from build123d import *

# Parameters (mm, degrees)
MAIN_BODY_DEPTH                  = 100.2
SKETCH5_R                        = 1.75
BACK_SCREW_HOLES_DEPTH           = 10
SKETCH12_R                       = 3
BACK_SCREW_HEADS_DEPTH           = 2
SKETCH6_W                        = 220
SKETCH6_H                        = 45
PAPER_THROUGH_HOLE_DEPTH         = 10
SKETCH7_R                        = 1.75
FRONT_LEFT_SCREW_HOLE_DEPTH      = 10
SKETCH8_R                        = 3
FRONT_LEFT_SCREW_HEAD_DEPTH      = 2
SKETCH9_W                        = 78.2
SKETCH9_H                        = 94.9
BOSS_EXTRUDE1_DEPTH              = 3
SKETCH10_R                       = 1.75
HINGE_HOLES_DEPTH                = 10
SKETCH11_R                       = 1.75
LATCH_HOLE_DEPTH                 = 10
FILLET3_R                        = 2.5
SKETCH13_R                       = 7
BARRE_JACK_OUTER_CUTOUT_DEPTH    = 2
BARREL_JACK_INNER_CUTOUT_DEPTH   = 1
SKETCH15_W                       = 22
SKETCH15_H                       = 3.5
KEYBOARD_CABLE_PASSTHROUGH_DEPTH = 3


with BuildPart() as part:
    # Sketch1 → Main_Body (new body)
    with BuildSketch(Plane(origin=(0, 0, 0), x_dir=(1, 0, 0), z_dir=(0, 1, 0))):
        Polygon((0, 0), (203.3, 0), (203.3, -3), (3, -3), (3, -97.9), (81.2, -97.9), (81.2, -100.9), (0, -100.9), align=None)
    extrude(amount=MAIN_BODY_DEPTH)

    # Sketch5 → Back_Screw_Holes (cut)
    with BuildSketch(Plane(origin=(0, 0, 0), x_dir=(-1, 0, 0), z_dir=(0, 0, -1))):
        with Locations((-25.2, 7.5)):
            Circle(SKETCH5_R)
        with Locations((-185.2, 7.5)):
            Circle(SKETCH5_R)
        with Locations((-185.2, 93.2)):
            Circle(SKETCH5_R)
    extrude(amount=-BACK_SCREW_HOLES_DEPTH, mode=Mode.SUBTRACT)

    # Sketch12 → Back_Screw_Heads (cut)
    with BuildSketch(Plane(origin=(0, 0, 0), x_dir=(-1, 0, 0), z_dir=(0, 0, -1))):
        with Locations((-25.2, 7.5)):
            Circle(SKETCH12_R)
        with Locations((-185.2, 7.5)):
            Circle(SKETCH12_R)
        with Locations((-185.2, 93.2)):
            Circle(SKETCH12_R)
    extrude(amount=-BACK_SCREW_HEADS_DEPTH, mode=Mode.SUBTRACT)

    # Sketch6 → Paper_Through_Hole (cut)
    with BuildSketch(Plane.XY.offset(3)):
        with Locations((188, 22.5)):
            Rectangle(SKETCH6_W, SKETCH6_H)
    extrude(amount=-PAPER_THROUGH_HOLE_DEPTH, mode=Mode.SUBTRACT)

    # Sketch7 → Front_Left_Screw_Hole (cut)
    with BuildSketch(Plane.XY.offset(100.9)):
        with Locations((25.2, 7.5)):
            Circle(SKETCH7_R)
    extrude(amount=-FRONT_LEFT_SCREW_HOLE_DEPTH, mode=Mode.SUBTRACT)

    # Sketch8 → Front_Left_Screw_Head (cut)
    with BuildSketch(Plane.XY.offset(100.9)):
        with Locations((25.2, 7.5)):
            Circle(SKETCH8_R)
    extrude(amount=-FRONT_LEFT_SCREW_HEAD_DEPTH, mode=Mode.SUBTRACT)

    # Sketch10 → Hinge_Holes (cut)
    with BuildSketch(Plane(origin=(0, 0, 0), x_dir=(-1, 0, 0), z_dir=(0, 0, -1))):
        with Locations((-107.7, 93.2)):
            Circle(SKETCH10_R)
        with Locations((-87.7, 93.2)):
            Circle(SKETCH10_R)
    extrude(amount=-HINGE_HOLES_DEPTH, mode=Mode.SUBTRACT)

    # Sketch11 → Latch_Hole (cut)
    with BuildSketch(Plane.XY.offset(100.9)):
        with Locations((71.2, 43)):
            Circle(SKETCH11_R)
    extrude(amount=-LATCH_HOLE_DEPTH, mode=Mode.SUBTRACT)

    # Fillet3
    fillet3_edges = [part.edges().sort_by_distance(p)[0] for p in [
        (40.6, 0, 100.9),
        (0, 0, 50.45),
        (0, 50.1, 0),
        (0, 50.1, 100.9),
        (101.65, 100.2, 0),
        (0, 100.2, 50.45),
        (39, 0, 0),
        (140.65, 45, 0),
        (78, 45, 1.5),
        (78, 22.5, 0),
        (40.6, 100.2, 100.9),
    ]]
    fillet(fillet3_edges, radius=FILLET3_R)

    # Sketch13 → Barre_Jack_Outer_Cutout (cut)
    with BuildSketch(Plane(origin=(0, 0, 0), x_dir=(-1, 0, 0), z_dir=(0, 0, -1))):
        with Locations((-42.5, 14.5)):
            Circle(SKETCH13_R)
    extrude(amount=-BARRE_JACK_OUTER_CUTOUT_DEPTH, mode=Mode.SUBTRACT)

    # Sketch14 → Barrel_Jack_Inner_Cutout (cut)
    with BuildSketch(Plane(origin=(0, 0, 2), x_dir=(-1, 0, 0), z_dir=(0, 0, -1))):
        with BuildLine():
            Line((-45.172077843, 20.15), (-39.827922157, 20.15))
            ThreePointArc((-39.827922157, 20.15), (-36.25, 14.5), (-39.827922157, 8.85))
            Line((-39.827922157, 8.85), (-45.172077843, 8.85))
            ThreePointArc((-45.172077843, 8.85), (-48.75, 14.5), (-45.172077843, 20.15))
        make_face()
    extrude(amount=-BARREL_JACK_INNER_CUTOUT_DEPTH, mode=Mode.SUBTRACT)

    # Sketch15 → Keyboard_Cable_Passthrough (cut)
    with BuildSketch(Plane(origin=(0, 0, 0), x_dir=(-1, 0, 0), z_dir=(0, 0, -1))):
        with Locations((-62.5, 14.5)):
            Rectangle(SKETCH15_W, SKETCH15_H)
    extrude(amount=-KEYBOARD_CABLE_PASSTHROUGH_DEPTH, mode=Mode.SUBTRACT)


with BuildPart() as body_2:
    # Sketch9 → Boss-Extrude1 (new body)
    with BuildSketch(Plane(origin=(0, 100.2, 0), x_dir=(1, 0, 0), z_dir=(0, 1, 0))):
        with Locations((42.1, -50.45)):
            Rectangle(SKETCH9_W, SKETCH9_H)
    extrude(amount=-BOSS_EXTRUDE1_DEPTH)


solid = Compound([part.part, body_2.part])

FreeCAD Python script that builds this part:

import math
import FreeCAD as App
import Part
import Sketcher
from FreeCAD import Vector


def edges_at(feature, points):
    """Names of the edges that pass closest to the given points."""
    edges = feature.Shape.Edges
    near = lambda p: min(range(len(edges)), key=lambda i: edges[i].distToShape(Part.Vertex(*p))[0])
    return sorted({f"Edge{near(p) + 1}" for p in points})


def add_polygon(sketch, points):
    """Adds a closed chain of lines whose ends are joined by coincident constraints."""
    first, n = sketch.GeometryCount, len(points)
    for a, b in zip(points, points[1:] + points[:1]):
        sketch.addGeometry(Part.LineSegment(App.Vector(*a, 0), App.Vector(*b, 0)), False)
    for i in range(n):
        sketch.addConstraint(Sketcher.Constraint("Coincident", first + i, 2, first + (i + 1) % n, 1))

doc = App.newDocument("Part")
body = doc.addObject("PartDesign::Body", "Body")

# Sketch on XZ plane
sketch1 = doc.addObject("Sketcher::SketchObject", "Sketch")
body.addObject(sketch1)
sketch1.AttachmentSupport = (doc.XZ_Plane, [""])
sketch1.MapMode = "FlatFace"
add_polygon(sketch1, [(203.3, 0), (0, 0), (0, 100.9), (81.2, 100.9), (81.2, 97.9), (3, 97.9), (3, 3), (203.3, 3)])  # lines 0-7
sketch1.addConstraint(Sketcher.Constraint("Horizontal", 0))
sketch1.addConstraint(Sketcher.Constraint("Vertical", 1))
sketch1.addConstraint(Sketcher.Constraint("Horizontal", 2))
sketch1.addConstraint(Sketcher.Constraint("Vertical", 3))
sketch1.addConstraint(Sketcher.Constraint("Horizontal", 4))
sketch1.addConstraint(Sketcher.Constraint("Vertical", 5))
sketch1.addConstraint(Sketcher.Constraint("Horizontal", 6))
sketch1.addConstraint(Sketcher.Constraint("Vertical", 7))
sketch1.addConstraint(Sketcher.Constraint("Coincident", 0, 2, -1, 1))
sketch1.addConstraint(Sketcher.Constraint("Equal", 3, 7))
sketch1.addConstraint(Sketcher.Constraint("DistanceY", 3, 2, 3, 1, 3.0))
sketch1.addConstraint(Sketcher.Constraint("DistanceX", 0, 2, 0, 1, 203.3))
sketch1.addConstraint(Sketcher.Constraint("DistanceX", 2, 1, 2, 2, 81.2))
sketch1.addConstraint(Sketcher.Constraint("DistanceX", 4, 2, 4, 1, 78.2))
sketch1.addConstraint(Sketcher.Constraint("DistanceY", 1, 1, 1, 2, 100.9))
pad1 = doc.addObject("PartDesign::Pad", "Pad")
body.addObject(pad1)
pad1.Profile = sketch1
pad1.Length = 100.2
pad1.Reversed = True

# Sketch on XY plane
sketch2 = doc.addObject("Sketcher::SketchObject", "Sketch001")
body.addObject(sketch2)
sketch2.AttachmentSupport = (doc.XY_Plane, [""])
sketch2.MapMode = "FlatFace"
sketch2.addGeometry(Part.Circle(Vector(25.2, 7.5, 0), Vector(0, 0, 1), 1.75), False)
sketch2.addGeometry(Part.Circle(Vector(185.2, 7.5, 0), Vector(0, 0, 1), 1.75), False)
sketch2.addGeometry(Part.Circle(Vector(185.2, 93.2, 0), Vector(0, 0, 1), 1.75), False)
sketch2.addConstraint(Sketcher.Constraint("Equal", 0, 1))
sketch2.addConstraint(Sketcher.Constraint("Equal", 1, 2))
sketch2.addConstraint(Sketcher.Constraint("Horizontal", 0, 3, 1, 3))
sketch2.addConstraint(Sketcher.Constraint("Vertical", 1, 3, 2, 3))
sketch2.addConstraint(Sketcher.Constraint("Diameter", 0, 3.5))
sketch2.addConstraint(Sketcher.Constraint("DistanceX", 0, 3, 1, 3, 160.0))
sketch2.addConstraint(Sketcher.Constraint("DistanceX", -1, 1, 0, 3, 25.2))
sketch2.addConstraint(Sketcher.Constraint("DistanceY", -1, 1, 0, 3, 7.5))
sketch2.addConstraint(Sketcher.Constraint("DistanceY", -1, 1, 2, 3, 93.2))
pocket1 = doc.addObject("PartDesign::Pocket", "Pocket")
body.addObject(pocket1)
pocket1.Profile = sketch2
pocket1.Length = 10
pocket1.Reversed = True

# Sketch on XY plane
sketch3 = doc.addObject("Sketcher::SketchObject", "Sketch002")
body.addObject(sketch3)
sketch3.AttachmentSupport = (doc.XY_Plane, [""])
sketch3.MapMode = "FlatFace"
sketch3.addGeometry(Part.Circle(Vector(25.2, 7.5, 0), Vector(0, 0, 1), 3), False)
sketch3.addGeometry(Part.Circle(Vector(185.2, 7.5, 0), Vector(0, 0, 1), 3), False)
sketch3.addGeometry(Part.Circle(Vector(185.2, 93.2, 0), Vector(0, 0, 1), 3), False)
sketch3.addConstraint(Sketcher.Constraint("Equal", 0, 1))
sketch3.addConstraint(Sketcher.Constraint("Equal", 1, 2))
sketch3.addConstraint(Sketcher.Constraint("Horizontal", 0, 3, 1, 3))
sketch3.addConstraint(Sketcher.Constraint("Vertical", 1, 3, 2, 3))
sketch3.addConstraint(Sketcher.Constraint("Diameter", 0, 6.0))
sketch3.addConstraint(Sketcher.Constraint("DistanceX", 0, 3, 1, 3, 160.0))
sketch3.addConstraint(Sketcher.Constraint("DistanceX", -1, 1, 0, 3, 25.2))
sketch3.addConstraint(Sketcher.Constraint("DistanceY", -1, 1, 0, 3, 7.5))
sketch3.addConstraint(Sketcher.Constraint("DistanceY", -1, 1, 2, 3, 93.2))
pocket2 = doc.addObject("PartDesign::Pocket", "Pocket001")
body.addObject(pocket2)
pocket2.Profile = sketch3
pocket2.Length = 2
pocket2.Reversed = True

# Sketch on XY plane
sketch4 = doc.addObject("Sketcher::SketchObject", "Sketch003")
body.addObject(sketch4)
sketch4.AttachmentSupport = (doc.XY_Plane, [""])
sketch4.MapMode = "FlatFace"
sketch4.AttachmentOffset = App.Placement(Vector(0, 0, 3), App.Rotation())
add_polygon(sketch4, [(78, 45), (78, 0), (298, 0), (298, 45)])  # lines 0-3
sketch4.addConstraint(Sketcher.Constraint("Vertical", 0))
sketch4.addConstraint(Sketcher.Constraint("Horizontal", 1))
sketch4.addConstraint(Sketcher.Constraint("Vertical", 2))
sketch4.addConstraint(Sketcher.Constraint("Horizontal", 3))
sketch4.addConstraint(Sketcher.Constraint("PointOnObject", 0, 2, -1))
sketch4.addConstraint(Sketcher.Constraint("DistanceX", 1, 1, 1, 2, 220.0))
sketch4.addConstraint(Sketcher.Constraint("DistanceY", 0, 2, 0, 1, 45.0))
sketch4.addConstraint(Sketcher.Constraint("DistanceX", -1, 1, 0, 2, 78.0))
pocket3 = doc.addObject("PartDesign::Pocket", "Pocket002")
body.addObject(pocket3)
pocket3.Profile = sketch4
pocket3.Length = 10

# Sketch on XY plane
sketch5 = doc.addObject("Sketcher::SketchObject", "Sketch004")
body.addObject(sketch5)
sketch5.AttachmentSupport = (doc.XY_Plane, [""])
sketch5.MapMode = "FlatFace"
sketch5.AttachmentOffset = App.Placement(Vector(0, 0, 100.9), App.Rotation())
sketch5.addGeometry(Part.Circle(Vector(25.2, 7.5, 0), Vector(0, 0, 1), 1.75), False)
sketch5.addConstraint(Sketcher.Constraint("Diameter", 0, 3.5))
sketch5.addConstraint(Sketcher.Constraint("DistanceX", -1, 1, 0, 3, 25.2))
sketch5.addConstraint(Sketcher.Constraint("DistanceY", -1, 1, 0, 3, 7.5))
pocket4 = doc.addObject("PartDesign::Pocket", "Pocket003")
body.addObject(pocket4)
pocket4.Profile = sketch5
pocket4.Length = 10

# Sketch on XY plane
sketch6 = doc.addObject("Sketcher::SketchObject", "Sketch005")
body.addObject(sketch6)
sketch6.AttachmentSupport = (doc.XY_Plane, [""])
sketch6.MapMode = "FlatFace"
sketch6.AttachmentOffset = App.Placement(Vector(0, 0, 100.9), App.Rotation())
sketch6.addGeometry(Part.Circle(Vector(25.2, 7.5, 0), Vector(0, 0, 1), 3), False)
sketch6.addConstraint(Sketcher.Constraint("Diameter", 0, 6.0))
sketch6.addConstraint(Sketcher.Constraint("DistanceX", -1, 1, 0, 3, 25.2))
sketch6.addConstraint(Sketcher.Constraint("DistanceY", -1, 1, 0, 3, 7.5))
pocket5 = doc.addObject("PartDesign::Pocket", "Pocket004")
body.addObject(pocket5)
pocket5.Profile = sketch6
pocket5.Length = 2

# Sketch on XY plane
sketch7 = doc.addObject("Sketcher::SketchObject", "Sketch006")
body.addObject(sketch7)
sketch7.AttachmentSupport = (doc.XY_Plane, [""])
sketch7.MapMode = "FlatFace"
sketch7.addGeometry(Part.Circle(Vector(107.7, 93.2, 0), Vector(0, 0, 1), 1.75), False)
sketch7.addGeometry(Part.Circle(Vector(87.7, 93.2, 0), Vector(0, 0, 1), 1.75), False)
sketch7.addConstraint(Sketcher.Constraint("Equal", 0, 1))
sketch7.addConstraint(Sketcher.Constraint("Horizontal", 0, 3, 1, 3))
sketch7.addConstraint(Sketcher.Constraint("Diameter", 0, 3.5))
sketch7.addConstraint(Sketcher.Constraint("DistanceX", 1, 3, 0, 3, 20.0))
sketch7.addConstraint(Sketcher.Constraint("DistanceX", -1, 1, 0, 3, 107.7))
sketch7.addConstraint(Sketcher.Constraint("DistanceY", -1, 1, 0, 3, 93.2))
pocket6 = doc.addObject("PartDesign::Pocket", "Pocket005")
body.addObject(pocket6)
pocket6.Profile = sketch7
pocket6.Length = 10
pocket6.Reversed = True

# Sketch on XY plane
sketch8 = doc.addObject("Sketcher::SketchObject", "Sketch007")
body.addObject(sketch8)
sketch8.AttachmentSupport = (doc.XY_Plane, [""])
sketch8.MapMode = "FlatFace"
sketch8.AttachmentOffset = App.Placement(Vector(0, 0, 100.9), App.Rotation())
sketch8.addGeometry(Part.Circle(Vector(71.2, 43, 0), Vector(0, 0, 1), 1.75), False)
sketch8.addConstraint(Sketcher.Constraint("Diameter", 0, 3.5))
sketch8.addConstraint(Sketcher.Constraint("DistanceY", -1, 1, 0, 3, 43.0))
sketch8.addConstraint(Sketcher.Constraint("DistanceX", -1, 1, 0, 3, 71.2))
pocket7 = doc.addObject("PartDesign::Pocket", "Pocket006")
body.addObject(pocket7)
pocket7.Profile = sketch8
pocket7.Length = 10
doc.recompute()

fillet = doc.addObject("PartDesign::Fillet", "Fillet")
body.addObject(fillet)
fillet.Base = (pocket7, edges_at(pocket7, [
    (40.6, 0, 100.9),
    (0, 0, 50.45),
    (0, 50.1, 0),
    (0, 50.1, 100.9),
    (101.65, 100.2, 0),
    (0, 100.2, 50.45),
    (39, 0, 0),
    (140.65, 45, 0),
    (78, 45, 1.5),
    (78, 22.5, 0),
    (40.6, 100.2, 100.9),
]))
fillet.Radius = 2.5

# Sketch on XY plane
sketch9 = doc.addObject("Sketcher::SketchObject", "Sketch008")
body.addObject(sketch9)
sketch9.AttachmentSupport = (doc.XY_Plane, [""])
sketch9.MapMode = "FlatFace"
sketch9.addGeometry(Part.Circle(Vector(42.5, 14.5, 0), Vector(0, 0, 1), 7), False)
sketch9.addConstraint(Sketcher.Constraint("Diameter", 0, 14.0))
sketch9.addConstraint(Sketcher.Constraint("DistanceX", -1, 1, 0, 3, 42.5))
sketch9.addConstraint(Sketcher.Constraint("DistanceY", -1, 1, 0, 3, 14.5))
pocket8 = doc.addObject("PartDesign::Pocket", "Pocket007")
body.addObject(pocket8)
pocket8.Profile = sketch9
pocket8.Length = 2
pocket8.Reversed = True

# Sketch on XY plane
sketch10 = doc.addObject("Sketcher::SketchObject", "Sketch009")
body.addObject(sketch10)
sketch10.AttachmentSupport = (doc.XY_Plane, [""])
sketch10.MapMode = "FlatFace"
sketch10.AttachmentOffset = App.Placement(Vector(0, 0, 2), App.Rotation())
sketch10.addGeometry(Part.LineSegment(Vector(39.827922, 20.15, 0), Vector(45.172078, 20.15, 0)), False)
sketch10.addGeometry(Part.ArcOfCircle(Part.Circle(Vector(42.5, 14.5, 0), Vector(0, 0, 1), 6.25), math.radians(-64.688935), math.radians(64.688935)), False)
sketch10.addGeometry(Part.LineSegment(Vector(45.172078, 8.85, 0), Vector(39.827922, 8.85, 0)), False)
sketch10.addGeometry(Part.ArcOfCircle(Part.Circle(Vector(42.5, 14.5, 0), Vector(0, 0, 1), 6.25), math.radians(115.311065), math.radians(244.688935)), False)
sketch10.addConstraint(Sketcher.Constraint("Coincident", 0, 2, 1, 2))
sketch10.addConstraint(Sketcher.Constraint("Coincident", 1, 1, 2, 1))
sketch10.addConstraint(Sketcher.Constraint("Coincident", 2, 2, 3, 2))
sketch10.addConstraint(Sketcher.Constraint("Coincident", 3, 1, 0, 1))
sketch10.addConstraint(Sketcher.Constraint("Horizontal", 0))
sketch10.addConstraint(Sketcher.Constraint("Horizontal", 2))
sketch10.addConstraint(Sketcher.Constraint("Coincident", 3, 3, 1, 3))
sketch10.addConstraint(Sketcher.Constraint("Equal", 1, 3))
sketch10.addConstraint(Sketcher.Constraint("Vertical", 0, 2, 1, 1))
sketch10.addConstraint(Sketcher.Constraint("Radius", 1, 6.25))
sketch10.addConstraint(Sketcher.Constraint("DistanceX", -1, 1, 1, 3, 42.5))
sketch10.addConstraint(Sketcher.Constraint("DistanceY", -1, 1, 1, 3, 14.5))
sketch10.addConstraint(Sketcher.Constraint("DistanceY", 1, 1, 0, 2, 11.3))
pocket9 = doc.addObject("PartDesign::Pocket", "Pocket008")
body.addObject(pocket9)
pocket9.Profile = sketch10
pocket9.Length = 1
pocket9.Reversed = True

# Sketch on XY plane
sketch11 = doc.addObject("Sketcher::SketchObject", "Sketch010")
body.addObject(sketch11)
sketch11.AttachmentSupport = (doc.XY_Plane, [""])
sketch11.MapMode = "FlatFace"
add_polygon(sketch11, [(73.5, 16.25), (73.5, 12.75), (51.5, 12.75), (51.5, 16.25)])  # lines 0-3
sketch11.addConstraint(Sketcher.Constraint("Vertical", 0))
sketch11.addConstraint(Sketcher.Constraint("Horizontal", 1))
sketch11.addConstraint(Sketcher.Constraint("Vertical", 2))
sketch11.addConstraint(Sketcher.Constraint("Horizontal", 3))
sketch11.addConstraint(Sketcher.Constraint("DistanceX", 1, 2, 1, 1, 22.0))
sketch11.addConstraint(Sketcher.Constraint("DistanceY", 0, 2, 0, 1, 3.5))
sketch11.addConstraint(Sketcher.Constraint("DistanceX", -1, 1, 0, 2, 73.5))
sketch11.addConstraint(Sketcher.Constraint("DistanceY", -1, 1, 0, 2, 12.75))
pocket10 = doc.addObject("PartDesign::Pocket", "Pocket009")
body.addObject(pocket10)
pocket10.Profile = sketch11
pocket10.Length = 3
pocket10.Reversed = True
body2 = doc.addObject("PartDesign::Body", "Body001")

# Sketch on XZ plane
sketch12 = doc.addObject("Sketcher::SketchObject", "Sketch011")
body2.addObject(sketch12)
sketch12.AttachmentSupport = (doc.getObject("XZ_Plane001"), [""])
sketch12.MapMode = "FlatFace"
sketch12.AttachmentOffset = App.Placement(Vector(0, 0, -100.2), App.Rotation())
add_polygon(sketch12, [(3, 3), (3, 97.9), (81.2, 97.9), (81.2, 3)])  # lines 0-3
sketch12.addConstraint(Sketcher.Constraint("Vertical", 0))
sketch12.addConstraint(Sketcher.Constraint("Horizontal", 1))
sketch12.addConstraint(Sketcher.Constraint("Vertical", 2))
sketch12.addConstraint(Sketcher.Constraint("Horizontal", 3))
sketch12.addConstraint(Sketcher.Constraint("DistanceX", 1, 1, 1, 2, 78.2))
sketch12.addConstraint(Sketcher.Constraint("DistanceY", 0, 1, 0, 2, 94.9))
sketch12.addConstraint(Sketcher.Constraint("DistanceX", -1, 1, 0, 2, 3.0))
sketch12.addConstraint(Sketcher.Constraint("DistanceY", -1, 1, 2, 2, 3.0))
pad2 = doc.addObject("PartDesign::Pad", "Pad001")
body2.addObject(pad2)
pad2.Profile = sketch12
pad2.Length = 3

doc.recompute()
